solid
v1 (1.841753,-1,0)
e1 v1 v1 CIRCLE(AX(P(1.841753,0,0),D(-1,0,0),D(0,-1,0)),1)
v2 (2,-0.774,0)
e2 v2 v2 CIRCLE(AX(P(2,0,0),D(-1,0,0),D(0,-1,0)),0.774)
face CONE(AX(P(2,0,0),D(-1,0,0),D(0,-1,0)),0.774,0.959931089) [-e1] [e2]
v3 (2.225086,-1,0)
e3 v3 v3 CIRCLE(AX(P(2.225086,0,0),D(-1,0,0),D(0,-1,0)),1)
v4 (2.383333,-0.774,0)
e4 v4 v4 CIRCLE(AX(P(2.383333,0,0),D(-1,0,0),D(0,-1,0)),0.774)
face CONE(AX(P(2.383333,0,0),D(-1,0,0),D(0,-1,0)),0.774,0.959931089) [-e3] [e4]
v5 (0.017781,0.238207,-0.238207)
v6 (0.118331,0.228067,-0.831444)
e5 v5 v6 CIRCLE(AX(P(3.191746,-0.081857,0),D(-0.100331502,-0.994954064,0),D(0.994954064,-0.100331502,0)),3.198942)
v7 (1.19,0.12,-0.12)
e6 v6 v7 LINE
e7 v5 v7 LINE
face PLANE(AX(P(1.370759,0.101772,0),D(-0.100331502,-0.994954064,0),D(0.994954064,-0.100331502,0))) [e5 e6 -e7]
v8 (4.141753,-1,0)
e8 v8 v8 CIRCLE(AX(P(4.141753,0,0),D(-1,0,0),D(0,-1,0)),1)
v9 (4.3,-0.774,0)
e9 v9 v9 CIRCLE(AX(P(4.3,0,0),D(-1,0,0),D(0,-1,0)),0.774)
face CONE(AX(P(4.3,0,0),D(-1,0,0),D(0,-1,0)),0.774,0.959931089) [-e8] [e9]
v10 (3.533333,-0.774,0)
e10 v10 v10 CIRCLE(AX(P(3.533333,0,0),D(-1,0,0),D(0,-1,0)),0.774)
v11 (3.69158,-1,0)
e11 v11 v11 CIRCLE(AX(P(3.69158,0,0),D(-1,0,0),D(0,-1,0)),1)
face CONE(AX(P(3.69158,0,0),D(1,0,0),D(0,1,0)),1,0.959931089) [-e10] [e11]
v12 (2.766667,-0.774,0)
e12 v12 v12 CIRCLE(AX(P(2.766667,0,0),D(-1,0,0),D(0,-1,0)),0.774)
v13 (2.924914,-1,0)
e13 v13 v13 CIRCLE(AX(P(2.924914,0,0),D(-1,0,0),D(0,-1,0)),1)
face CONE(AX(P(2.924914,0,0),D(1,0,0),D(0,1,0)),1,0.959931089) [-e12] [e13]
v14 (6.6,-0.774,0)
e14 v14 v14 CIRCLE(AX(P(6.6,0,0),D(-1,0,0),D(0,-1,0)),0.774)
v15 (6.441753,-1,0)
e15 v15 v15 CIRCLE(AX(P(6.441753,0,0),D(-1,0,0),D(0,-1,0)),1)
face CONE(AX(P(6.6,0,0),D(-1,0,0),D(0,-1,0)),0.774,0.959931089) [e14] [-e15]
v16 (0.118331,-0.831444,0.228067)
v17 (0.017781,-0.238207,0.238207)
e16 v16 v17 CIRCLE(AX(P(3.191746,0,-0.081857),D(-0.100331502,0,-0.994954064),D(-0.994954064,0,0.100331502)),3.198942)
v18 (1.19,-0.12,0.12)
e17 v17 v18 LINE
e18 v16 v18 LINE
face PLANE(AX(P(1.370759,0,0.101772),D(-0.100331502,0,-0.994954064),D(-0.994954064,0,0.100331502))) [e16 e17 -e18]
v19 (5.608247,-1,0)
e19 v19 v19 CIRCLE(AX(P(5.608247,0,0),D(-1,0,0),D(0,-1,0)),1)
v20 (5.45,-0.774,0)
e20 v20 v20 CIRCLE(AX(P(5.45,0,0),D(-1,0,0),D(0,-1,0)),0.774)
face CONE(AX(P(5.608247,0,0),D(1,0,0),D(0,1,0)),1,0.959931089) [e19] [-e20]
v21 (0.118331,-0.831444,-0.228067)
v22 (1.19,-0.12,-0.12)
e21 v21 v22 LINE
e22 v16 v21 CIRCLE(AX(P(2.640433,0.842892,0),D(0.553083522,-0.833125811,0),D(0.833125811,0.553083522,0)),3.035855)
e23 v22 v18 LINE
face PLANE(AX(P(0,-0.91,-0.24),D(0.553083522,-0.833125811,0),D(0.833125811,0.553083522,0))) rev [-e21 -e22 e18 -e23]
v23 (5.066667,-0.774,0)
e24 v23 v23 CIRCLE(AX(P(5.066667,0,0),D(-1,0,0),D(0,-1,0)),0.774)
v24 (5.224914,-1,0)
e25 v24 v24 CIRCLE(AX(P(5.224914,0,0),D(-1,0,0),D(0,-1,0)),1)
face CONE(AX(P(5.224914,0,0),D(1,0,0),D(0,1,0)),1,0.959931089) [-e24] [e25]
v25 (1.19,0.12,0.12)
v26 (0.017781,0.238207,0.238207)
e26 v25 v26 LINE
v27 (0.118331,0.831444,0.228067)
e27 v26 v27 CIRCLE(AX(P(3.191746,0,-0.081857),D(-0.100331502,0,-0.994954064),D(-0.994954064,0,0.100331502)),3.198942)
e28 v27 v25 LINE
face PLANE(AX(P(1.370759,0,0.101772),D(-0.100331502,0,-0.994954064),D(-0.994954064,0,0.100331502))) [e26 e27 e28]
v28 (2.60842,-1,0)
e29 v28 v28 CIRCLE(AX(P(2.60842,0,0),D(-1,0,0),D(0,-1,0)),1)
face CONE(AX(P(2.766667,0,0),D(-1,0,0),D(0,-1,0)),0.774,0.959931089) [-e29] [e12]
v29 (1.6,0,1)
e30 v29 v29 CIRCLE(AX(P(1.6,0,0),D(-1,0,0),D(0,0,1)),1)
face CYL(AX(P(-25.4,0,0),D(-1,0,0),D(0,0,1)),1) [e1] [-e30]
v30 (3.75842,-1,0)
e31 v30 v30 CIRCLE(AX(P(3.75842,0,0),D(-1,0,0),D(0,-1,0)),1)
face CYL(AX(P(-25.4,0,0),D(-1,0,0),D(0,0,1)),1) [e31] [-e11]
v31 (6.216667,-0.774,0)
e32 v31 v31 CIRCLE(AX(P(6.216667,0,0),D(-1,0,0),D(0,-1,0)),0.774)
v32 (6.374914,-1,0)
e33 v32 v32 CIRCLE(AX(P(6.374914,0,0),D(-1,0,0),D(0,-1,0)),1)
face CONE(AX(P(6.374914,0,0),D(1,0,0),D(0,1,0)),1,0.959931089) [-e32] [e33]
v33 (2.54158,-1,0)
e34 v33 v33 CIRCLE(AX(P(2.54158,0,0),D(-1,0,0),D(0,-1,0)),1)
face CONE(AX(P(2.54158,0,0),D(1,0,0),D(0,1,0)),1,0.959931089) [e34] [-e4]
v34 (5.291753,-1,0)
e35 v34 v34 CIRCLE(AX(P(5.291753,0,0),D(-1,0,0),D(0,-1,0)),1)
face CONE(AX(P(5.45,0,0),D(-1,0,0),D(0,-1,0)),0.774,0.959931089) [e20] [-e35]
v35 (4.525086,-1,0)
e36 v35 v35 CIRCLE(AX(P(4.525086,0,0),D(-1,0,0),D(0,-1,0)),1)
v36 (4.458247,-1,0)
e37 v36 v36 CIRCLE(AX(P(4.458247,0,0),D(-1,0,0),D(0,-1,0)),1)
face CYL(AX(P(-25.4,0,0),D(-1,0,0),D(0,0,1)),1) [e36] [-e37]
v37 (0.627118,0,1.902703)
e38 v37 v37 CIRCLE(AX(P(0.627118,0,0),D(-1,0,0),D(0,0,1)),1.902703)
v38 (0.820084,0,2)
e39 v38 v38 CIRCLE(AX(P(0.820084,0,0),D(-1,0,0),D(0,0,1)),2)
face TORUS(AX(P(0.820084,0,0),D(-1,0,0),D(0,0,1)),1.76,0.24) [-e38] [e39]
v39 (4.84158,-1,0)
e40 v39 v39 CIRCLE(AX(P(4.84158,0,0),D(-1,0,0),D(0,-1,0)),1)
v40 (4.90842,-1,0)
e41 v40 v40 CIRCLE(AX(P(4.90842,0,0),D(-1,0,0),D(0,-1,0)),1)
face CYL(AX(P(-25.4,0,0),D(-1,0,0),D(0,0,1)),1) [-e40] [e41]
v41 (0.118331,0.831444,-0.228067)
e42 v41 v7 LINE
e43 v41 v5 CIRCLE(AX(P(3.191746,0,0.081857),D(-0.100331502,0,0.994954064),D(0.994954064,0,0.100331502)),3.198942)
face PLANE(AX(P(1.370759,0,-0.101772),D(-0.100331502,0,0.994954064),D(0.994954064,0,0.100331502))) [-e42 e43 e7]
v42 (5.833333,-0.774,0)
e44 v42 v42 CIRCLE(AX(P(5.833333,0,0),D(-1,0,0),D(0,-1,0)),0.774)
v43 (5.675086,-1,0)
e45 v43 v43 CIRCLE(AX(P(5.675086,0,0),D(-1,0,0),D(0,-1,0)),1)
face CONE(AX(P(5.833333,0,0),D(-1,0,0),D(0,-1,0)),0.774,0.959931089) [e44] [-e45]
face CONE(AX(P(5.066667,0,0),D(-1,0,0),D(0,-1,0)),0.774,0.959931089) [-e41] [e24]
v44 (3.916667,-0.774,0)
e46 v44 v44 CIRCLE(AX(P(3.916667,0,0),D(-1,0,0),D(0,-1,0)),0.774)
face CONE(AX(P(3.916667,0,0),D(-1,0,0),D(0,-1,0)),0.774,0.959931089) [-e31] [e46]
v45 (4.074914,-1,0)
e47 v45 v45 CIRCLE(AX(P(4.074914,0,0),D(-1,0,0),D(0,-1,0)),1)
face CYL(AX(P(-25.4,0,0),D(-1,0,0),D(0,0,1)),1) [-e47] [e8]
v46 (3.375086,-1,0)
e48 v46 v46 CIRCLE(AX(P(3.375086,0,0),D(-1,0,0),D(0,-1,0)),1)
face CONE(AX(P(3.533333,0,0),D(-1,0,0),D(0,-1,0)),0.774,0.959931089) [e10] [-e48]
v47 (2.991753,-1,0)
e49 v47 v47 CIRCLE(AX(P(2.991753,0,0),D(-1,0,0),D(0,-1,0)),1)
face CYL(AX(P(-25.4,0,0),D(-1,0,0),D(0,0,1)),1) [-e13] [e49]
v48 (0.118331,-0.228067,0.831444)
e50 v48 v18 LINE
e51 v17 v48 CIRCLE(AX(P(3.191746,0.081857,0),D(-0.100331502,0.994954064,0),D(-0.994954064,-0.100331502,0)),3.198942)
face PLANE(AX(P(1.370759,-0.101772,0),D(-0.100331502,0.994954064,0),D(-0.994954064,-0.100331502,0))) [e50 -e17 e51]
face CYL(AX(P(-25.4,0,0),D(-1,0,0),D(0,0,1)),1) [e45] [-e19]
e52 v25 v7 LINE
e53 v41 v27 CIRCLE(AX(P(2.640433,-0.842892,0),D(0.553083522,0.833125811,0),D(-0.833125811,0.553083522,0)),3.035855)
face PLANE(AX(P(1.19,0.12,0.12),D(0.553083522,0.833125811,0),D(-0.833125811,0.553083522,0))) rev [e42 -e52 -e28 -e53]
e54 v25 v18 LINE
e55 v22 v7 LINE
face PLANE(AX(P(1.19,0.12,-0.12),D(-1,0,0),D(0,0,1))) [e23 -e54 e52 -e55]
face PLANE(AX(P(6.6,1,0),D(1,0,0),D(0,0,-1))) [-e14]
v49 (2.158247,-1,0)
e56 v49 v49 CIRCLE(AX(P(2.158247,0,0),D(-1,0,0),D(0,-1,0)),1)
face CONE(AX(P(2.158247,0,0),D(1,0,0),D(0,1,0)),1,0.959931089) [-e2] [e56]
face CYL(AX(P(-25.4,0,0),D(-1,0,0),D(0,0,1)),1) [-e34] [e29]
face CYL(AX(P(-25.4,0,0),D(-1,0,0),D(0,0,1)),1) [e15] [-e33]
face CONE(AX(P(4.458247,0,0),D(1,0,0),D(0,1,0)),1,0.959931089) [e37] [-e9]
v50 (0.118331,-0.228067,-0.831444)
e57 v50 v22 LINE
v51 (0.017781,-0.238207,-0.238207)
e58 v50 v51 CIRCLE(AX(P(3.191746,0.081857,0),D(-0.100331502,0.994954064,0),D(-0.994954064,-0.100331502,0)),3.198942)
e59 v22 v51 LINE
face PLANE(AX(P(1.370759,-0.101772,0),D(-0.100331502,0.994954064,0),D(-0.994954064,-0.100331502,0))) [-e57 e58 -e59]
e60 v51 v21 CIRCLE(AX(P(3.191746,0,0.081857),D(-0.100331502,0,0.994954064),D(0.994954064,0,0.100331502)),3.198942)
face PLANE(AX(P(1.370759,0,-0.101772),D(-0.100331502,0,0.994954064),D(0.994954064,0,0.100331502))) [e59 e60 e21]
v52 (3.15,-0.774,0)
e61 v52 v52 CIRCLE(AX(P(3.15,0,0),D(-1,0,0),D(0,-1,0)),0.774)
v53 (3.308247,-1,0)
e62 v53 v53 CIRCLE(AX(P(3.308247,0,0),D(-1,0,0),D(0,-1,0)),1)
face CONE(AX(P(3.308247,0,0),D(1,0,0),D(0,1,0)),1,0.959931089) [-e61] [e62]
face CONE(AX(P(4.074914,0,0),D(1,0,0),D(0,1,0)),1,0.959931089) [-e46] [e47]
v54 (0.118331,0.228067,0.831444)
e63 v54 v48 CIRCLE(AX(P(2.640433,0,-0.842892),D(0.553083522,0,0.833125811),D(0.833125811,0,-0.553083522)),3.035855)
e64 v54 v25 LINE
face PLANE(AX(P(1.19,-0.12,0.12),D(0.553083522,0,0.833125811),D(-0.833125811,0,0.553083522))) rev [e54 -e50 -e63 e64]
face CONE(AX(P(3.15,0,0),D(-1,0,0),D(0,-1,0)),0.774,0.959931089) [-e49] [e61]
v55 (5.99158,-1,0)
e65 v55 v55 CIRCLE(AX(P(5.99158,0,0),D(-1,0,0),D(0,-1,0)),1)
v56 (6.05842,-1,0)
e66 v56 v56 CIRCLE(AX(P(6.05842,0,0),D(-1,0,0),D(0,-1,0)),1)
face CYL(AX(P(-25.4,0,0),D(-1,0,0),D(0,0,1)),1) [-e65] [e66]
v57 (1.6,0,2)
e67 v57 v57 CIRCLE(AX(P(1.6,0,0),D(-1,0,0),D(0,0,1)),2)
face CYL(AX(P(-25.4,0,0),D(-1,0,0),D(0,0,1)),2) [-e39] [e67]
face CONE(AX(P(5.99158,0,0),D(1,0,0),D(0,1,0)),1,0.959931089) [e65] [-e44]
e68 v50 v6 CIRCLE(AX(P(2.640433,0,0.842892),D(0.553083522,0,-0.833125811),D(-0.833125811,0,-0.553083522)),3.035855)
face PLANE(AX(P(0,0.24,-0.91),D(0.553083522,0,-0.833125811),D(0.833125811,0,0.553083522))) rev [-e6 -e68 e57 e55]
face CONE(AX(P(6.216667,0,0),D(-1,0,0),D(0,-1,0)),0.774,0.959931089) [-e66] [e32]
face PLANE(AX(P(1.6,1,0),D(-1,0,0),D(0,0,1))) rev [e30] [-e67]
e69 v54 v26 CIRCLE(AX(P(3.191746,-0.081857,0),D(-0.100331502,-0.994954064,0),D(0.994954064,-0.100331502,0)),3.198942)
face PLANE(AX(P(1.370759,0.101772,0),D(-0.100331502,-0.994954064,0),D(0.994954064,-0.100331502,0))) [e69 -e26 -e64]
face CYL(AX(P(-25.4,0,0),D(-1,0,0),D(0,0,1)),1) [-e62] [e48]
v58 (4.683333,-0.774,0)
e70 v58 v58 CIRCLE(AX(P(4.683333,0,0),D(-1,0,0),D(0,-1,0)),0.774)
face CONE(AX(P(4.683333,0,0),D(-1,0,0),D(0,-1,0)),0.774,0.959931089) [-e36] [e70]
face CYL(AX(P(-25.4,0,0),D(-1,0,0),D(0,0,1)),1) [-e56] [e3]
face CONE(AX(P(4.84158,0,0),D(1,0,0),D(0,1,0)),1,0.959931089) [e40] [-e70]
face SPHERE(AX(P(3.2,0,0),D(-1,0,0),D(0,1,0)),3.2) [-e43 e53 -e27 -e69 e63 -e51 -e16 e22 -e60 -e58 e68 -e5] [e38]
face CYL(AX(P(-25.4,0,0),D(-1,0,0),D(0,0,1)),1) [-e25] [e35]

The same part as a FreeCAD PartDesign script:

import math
import FreeCAD as App
import Part
import Sketcher
Q = App.Units.Quantity


def add_polygon(sketch, points):
    """Adds a closed chain of lines whose ends are joined by coincident constraints."""
    first, n = sketch.GeometryCount, len(points)
    for a, b in zip(points, points[1:] + points[:1]):
        sketch.addGeometry(Part.LineSegment(App.Vector(*a, 0), App.Vector(*b, 0)), False)
    for i in range(n):
        sketch.addConstraint(Sketcher.Constraint("Coincident", first + i, 2, first + (i + 1) % n, 1))

doc = App.newDocument("Part")
params = doc.addObject("Spreadsheet::Sheet", "Params")
for row, (alias, value) in enumerate([
    ("sketch1_radius", "3.2 mm"),
    ("sketch1_width", "5 mm"),
    ("sketch1_height", "1 mm"),
    ("sketch1_radius2", "0.24 mm"),
    ("sketch1_width2", "6.6 mm"),
    ("revolution_angle", "360 deg"),
    ("sketch2_width", "1.82 mm"),
    ("sketch2_height", "0.48 mm"),
    ("sketch3_width", "0.24 mm"),
    ("sketch4_height", "0.25 mm"),
    ("groove_angle", "360 deg"),
    ("linearpattern_pitch", "0.383333 mm"),
], start=1):
    params.set(f"A{row}", alias)
    params.set(f"B{row}", "=" + value)
    params.setAlias(f"B{row}", alias)

body = doc.addObject("PartDesign::Body", "Body")

sketch1 = body.newObject("Sketcher::SketchObject", "Sketch")
sketch1.AttachmentSupport = (doc.getObject("XY_Plane"), [""])
sketch1.MapMode = "FlatFace"
sketch1.addGeometry(Part.LineSegment(App.Vector(1.6, 1, 0), App.Vector(1.6, 2, 0)), False)
sketch1.addGeometry(Part.LineSegment(App.Vector(1.6, 2, 0), App.Vector(0.82, 2, 0)), False)
sketch1.addGeometry(Part.ArcOfCircle(Part.Circle(App.Vector(0.82, 1.76, 0), App.Vector(0, 0, 1), 0.24), math.radians(90), math.radians(144)), False)
sketch1.addGeometry(Part.ArcOfCircle(Part.Circle(App.Vector(3.2, 0, 0), App.Vector(0, 0, 1), 3.2), math.radians(144), math.radians(180)), False)
sketch1.addGeometry(Part.LineSegment(App.Vector(0, 0, 0), App.Vector(6.6, 0, 0)), False)
sketch1.addGeometry(Part.LineSegment(App.Vector(6.6, 0, 0), App.Vector(6.6, 1, 0)), False)
sketch1.addGeometry(Part.LineSegment(App.Vector(6.6, 1, 0), App.Vector(1.6, 1, 0)), False)
sketch1.addConstraint(Sketcher.Constraint("Coincident", 0, 2, 1, 1))
sketch1.addConstraint(Sketcher.Constraint("Tangent", 1, 2, 2, 1))
sketch1.addConstraint(Sketcher.Constraint("Tangent", 2, 2, 3, 1))
sketch1.addConstraint(Sketcher.Constraint("Coincident", 3, 2, 4, 1))
sketch1.addConstraint(Sketcher.Constraint("Coincident", 4, 2, 5, 1))
sketch1.addConstraint(Sketcher.Constraint("Coincident", 5, 2, 6, 1))
sketch1.addConstraint(Sketcher.Constraint("Coincident", 6, 2, 0, 1))
sketch1.addConstraint(Sketcher.Constraint("Vertical", 0))
sketch1.addConstraint(Sketcher.Constraint("Horizontal", 1))
sketch1.addConstraint(Sketcher.Constraint("Horizontal", 4))
sketch1.addConstraint(Sketcher.Constraint("Vertical", 5))
sketch1.addConstraint(Sketcher.Constraint("Horizontal", 6))
sketch1.addConstraint(Sketcher.Constraint("Coincident", 3, 2, -1, 1))
sketch1.addConstraint(Sketcher.Constraint("PointOnObject", 3, 3, -1))
sketch1.addConstraint(Sketcher.Constraint("Equal", 0, 5))
sketch1.addConstraint(Sketcher.Constraint("Radius", 3, Q("3.2 mm")))
sketch1.addConstraint(Sketcher.Constraint("DistanceX", 6, 2, 6, 1, Q("5 mm")))
sketch1.addConstraint(Sketcher.Constraint("DistanceY", 0, 1, 0, 2, Q("1 mm")))
sketch1.addConstraint(Sketcher.Constraint("Radius", 2, Q("0.24 mm")))
sketch1.addConstraint(Sketcher.Constraint("DistanceX", 4, 1, 4, 2, Q("6.6 mm")))
sketch1.setExpression("Constraints[15]", "Params.sketch1_radius")
sketch1.setExpression("Constraints[16]", "Params.sketch1_width")
sketch1.setExpression("Constraints[17]", "Params.sketch1_height")
sketch1.setExpression("Constraints[18]", "Params.sketch1_radius2")
sketch1.setExpression("Constraints[19]", "Params.sketch1_width2")
revolution = body.newObject("PartDesign::Revolution", "Revolution")
revolution.Profile = sketch1
revolution.ReferenceAxis = (sketch1, ["H_Axis"])
revolution.setExpression("Angle", "Params.revolution_angle")

sketch2 = body.newObject("Sketcher::SketchObject", "Sketch001")
sketch2.AttachmentSupport = (doc.getObject("YZ_Plane"), [""])
sketch2.MapMode = "FlatFace"
add_polygon(sketch2, [(0.91, 0.24), (-0.91, 0.24), (-0.91, -0.24), (0.91, -0.24)])
sketch2.addConstraint(Sketcher.Constraint("Horizontal", 0))
sketch2.addConstraint(Sketcher.Constraint("Vertical", 1))
sketch2.addConstraint(Sketcher.Constraint("Horizontal", 2))
sketch2.addConstraint(Sketcher.Constraint("Vertical", 3))
sketch2.addConstraint(Sketcher.Constraint("Symmetric", 0, 2, 2, 2, -1, 1))
sketch2.addConstraint(Sketcher.Constraint("DistanceX", 0, 2, 0, 1, Q("1.82 mm")))
sketch2.addConstraint(Sketcher.Constraint("DistanceY", 1, 2, 1, 1, Q("0.48 mm")))
sketch2.setExpression("Constraints[9]", "Params.sketch2_width")
sketch2.setExpression("Constraints[10]", "Params.sketch2_height")

sketch3 = body.newObject("Sketcher::SketchObject", "Sketch002")
sketch3.AttachmentSupport = (doc.getObject("YZ_Plane"), [""])
sketch3.MapMode = "FlatFace"
sketch3.AttachmentOffset = App.Placement(App.Vector(0, 0, 1.19), App.Rotation())
add_polygon(sketch3, [(0.12, 0.12), (-0.12, 0.12), (-0.12, -0.12), (0.12, -0.12)])
sketch3.addConstraint(Sketcher.Constraint("Horizontal", 0))
sketch3.addConstraint(Sketcher.Constraint("Vertical", 1))
sketch3.addConstraint(Sketcher.Constraint("Horizontal", 2))
sketch3.addConstraint(Sketcher.Constraint("Vertical", 3))
sketch3.addConstraint(Sketcher.Constraint("Symmetric", 0, 2, 2, 2, -1, 1))
sketch3.addConstraint(Sketcher.Constraint("Equal", 2, 1))
sketch3.addConstraint(Sketcher.Constraint("DistanceX", 0, 2, 0, 1, Q("0.24 mm")))
sketch3.setExpression("Constraints[10]", "Params.sketch3_width")

subtractiveloft = body.newObject("PartDesign::SubtractiveLoft", "SubtractiveLoft")
subtractiveloft.Profile = sketch2
subtractiveloft.Sections = [sketch3]
doc.recompute()

polarpattern = body.newObject("PartDesign::PolarPattern", "PolarPattern")
polarpattern.Originals = [subtractiveloft]
polarpattern.Axis = (doc.getObject("X_Axis"), [""])
polarpattern.Angle = 90
polarpattern.Occurrences = 2
body.Tip = polarpattern

sketch4 = body.newObject("Sketcher::SketchObject", "Sketch003")
sketch4.AttachmentSupport = (doc.getObject("XY_Plane"), [""])
sketch4.MapMode = "FlatFace"
add_polygon(sketch4, [(2, -0.77), (1.84, -1), (1.84, -1.25), (2.16, -1.25), (2.16, -1)])
sketch4.addConstraint(Sketcher.Constraint("Vertical", 1))
sketch4.addConstraint(Sketcher.Constraint("Horizontal", 2))
sketch4.addConstraint(Sketcher.Constraint("Vertical", 3))
sketch4.addConstraint(Sketcher.Constraint("Horizontal", 0, 2, 3, 2))
sketch4.addConstraint(Sketcher.Constraint("Equal", 0, 4))
sketch4.addConstraint(Sketcher.Constraint("Angle", 0, Q("-125 deg")))
sketch4.addConstraint(Sketcher.Constraint("DistanceY", 0, 2, -1, 1, Q("1 mm")))
sketch4.addConstraint(Sketcher.Constraint("DistanceX", -1, 1, 4, 2, Q("2 mm")))
sketch4.addConstraint(Sketcher.Constraint("DistanceY", 1, 2, 1, 1, Q("0.25 mm")))
sketch4.addConstraint(Sketcher.Constraint("DistanceY", 4, 2, -1, 1, Q("0.774 mm")))
sketch4.setExpression("Constraints[13]", "Params.sketch4_height")
groove = body.newObject("PartDesign::Groove", "Groove")
groove.Profile = sketch4
groove.ReferenceAxis = (sketch4, ["H_Axis"])
groove.setExpression("Angle", "Params.groove_angle")
doc.recompute()

linearpattern = body.newObject("PartDesign::LinearPattern", "LinearPattern")
linearpattern.Originals = [groove]
linearpattern.Direction = (doc.getObject("X_Axis"), [""])
linearpattern.Mode = "offset"
linearpattern.setExpression("Offset", "Params.linearpattern_pitch")
linearpattern.Occurrences = 13
body.Tip = linearpattern

doc.recompute()
